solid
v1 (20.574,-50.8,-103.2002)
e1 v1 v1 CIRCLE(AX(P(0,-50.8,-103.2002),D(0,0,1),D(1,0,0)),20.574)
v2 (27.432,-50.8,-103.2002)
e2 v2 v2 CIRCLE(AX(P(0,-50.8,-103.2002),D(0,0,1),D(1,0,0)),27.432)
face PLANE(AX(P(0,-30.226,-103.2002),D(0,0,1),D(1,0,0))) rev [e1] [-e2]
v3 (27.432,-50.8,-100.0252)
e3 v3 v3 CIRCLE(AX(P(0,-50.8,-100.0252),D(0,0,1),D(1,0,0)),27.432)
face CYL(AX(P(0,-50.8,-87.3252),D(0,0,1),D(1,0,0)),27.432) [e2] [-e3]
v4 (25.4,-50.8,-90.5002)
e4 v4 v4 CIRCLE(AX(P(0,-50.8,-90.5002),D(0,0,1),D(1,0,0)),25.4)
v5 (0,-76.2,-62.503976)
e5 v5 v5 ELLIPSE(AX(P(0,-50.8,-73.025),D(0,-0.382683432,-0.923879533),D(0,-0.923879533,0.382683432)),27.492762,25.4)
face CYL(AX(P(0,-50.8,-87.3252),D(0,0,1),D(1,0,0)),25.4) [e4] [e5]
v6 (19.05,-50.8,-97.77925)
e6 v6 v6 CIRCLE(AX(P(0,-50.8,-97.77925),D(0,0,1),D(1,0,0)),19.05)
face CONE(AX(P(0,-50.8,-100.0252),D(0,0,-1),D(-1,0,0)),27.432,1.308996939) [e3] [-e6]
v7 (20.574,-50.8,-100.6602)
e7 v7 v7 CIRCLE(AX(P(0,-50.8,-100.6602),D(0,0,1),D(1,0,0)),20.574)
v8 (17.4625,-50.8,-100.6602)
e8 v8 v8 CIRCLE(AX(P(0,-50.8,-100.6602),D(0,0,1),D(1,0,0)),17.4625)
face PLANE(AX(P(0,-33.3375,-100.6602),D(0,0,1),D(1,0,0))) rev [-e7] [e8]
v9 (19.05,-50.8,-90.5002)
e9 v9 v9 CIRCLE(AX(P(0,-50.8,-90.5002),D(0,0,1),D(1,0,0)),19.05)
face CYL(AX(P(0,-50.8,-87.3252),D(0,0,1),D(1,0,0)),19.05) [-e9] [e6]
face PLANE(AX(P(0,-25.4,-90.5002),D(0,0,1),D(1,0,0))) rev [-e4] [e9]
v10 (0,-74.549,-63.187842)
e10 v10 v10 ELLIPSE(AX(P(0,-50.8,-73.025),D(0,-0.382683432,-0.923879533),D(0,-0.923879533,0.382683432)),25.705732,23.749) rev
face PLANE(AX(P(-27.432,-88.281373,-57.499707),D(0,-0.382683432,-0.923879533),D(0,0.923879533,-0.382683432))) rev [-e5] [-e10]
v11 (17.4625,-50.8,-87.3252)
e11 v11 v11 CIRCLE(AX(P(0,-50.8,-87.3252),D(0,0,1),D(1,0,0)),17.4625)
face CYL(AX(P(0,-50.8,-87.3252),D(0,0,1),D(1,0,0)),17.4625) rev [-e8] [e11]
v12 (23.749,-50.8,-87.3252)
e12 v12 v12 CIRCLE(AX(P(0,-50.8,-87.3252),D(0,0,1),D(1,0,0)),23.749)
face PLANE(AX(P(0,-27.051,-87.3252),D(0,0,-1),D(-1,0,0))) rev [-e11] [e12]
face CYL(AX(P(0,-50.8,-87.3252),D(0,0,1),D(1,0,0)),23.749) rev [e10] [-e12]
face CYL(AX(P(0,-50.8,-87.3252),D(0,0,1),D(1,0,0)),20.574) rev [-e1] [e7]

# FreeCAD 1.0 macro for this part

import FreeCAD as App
import Part
import Sketcher
from FreeCAD import Vector
Q = App.Units.Quantity

doc = App.newDocument("Part")
body = doc.addObject("PartDesign::Body", "Body")

sketch1 = doc.addObject("Sketcher::SketchObject", "Sketch")
body.addObject(sketch1)
sketch1.AttachmentSupport = (doc.YZ_Plane, [""])
sketch1.MapMode = "FlatFace"
sketch1.addGeometry(Part.LineSegment(Vector(-33.3375, -87.3252, 0), Vector(-33.3375, -100.6602, 0)), False)
sketch1.addGeometry(Part.LineSegment(Vector(-33.3375, -100.6602, 0), Vector(-30.226, -100.6602, 0)), False)
sketch1.addGeometry(Part.LineSegment(Vector(-30.226, -100.6602, 0), Vector(-30.226, -103.2002, 0)), False)
sketch1.addGeometry(Part.LineSegment(Vector(-30.226, -103.2002, 0), Vector(-23.368, -103.2002, 0)), False)
sketch1.addGeometry(Part.LineSegment(Vector(-23.368, -103.2002, 0), Vector(-23.368, -100.0252, 0)), False)
sketch1.addGeometry(Part.LineSegment(Vector(-23.368, -100.0252, 0), Vector(-31.75, -97.77925, 0)), False)
sketch1.addGeometry(Part.LineSegment(Vector(-31.75, -97.77925, 0), Vector(-31.75, -90.5002, 0)), False)
sketch1.addGeometry(Part.LineSegment(Vector(-31.75, -90.5002, 0), Vector(-25.4, -90.5002, 0)), False)
sketch1.addGeometry(Part.LineSegment(Vector(-25.4, -90.5002, 0), Vector(-25.4, -58.7502, 0)), False)
sketch1.addGeometry(Part.LineSegment(Vector(-25.4, -58.7502, 0), Vector(-27.051, -58.7502, 0)), False)
sketch1.addGeometry(Part.LineSegment(Vector(-27.051, -58.7502, 0), Vector(-27.051, -87.3252, 0)), False)
sketch1.addGeometry(Part.LineSegment(Vector(-27.051, -87.3252, 0), Vector(-33.3375, -87.3252, 0)), False)
sketch1.addGeometry(Part.LineSegment(Vector(-50.8, -58.7502, 0), Vector(-50.8, -103.2002, 0)), True)
sketch1.addConstraint(Sketcher.Constraint("Coincident", 0, 2, 1, 1))
sketch1.addConstraint(Sketcher.Constraint("Coincident", 1, 2, 2, 1))
sketch1.addConstraint(Sketcher.Constraint("Coincident", 2, 2, 3, 1))
sketch1.addConstraint(Sketcher.Constraint("Coincident", 3, 2, 4, 1))
sketch1.addConstraint(Sketcher.Constraint("Coincident", 4, 2, 5, 1))
sketch1.addConstraint(Sketcher.Constraint("Coincident", 5, 2, 6, 1))
sketch1.addConstraint(Sketcher.Constraint("Coincident", 6, 2, 7, 1))
sketch1.addConstraint(Sketcher.Constraint("Coincident", 7, 2, 8, 1))
sketch1.addConstraint(Sketcher.Constraint("Coincident", 8, 2, 9, 1))
sketch1.addConstraint(Sketcher.Constraint("Coincident", 9, 2, 10, 1))
sketch1.addConstraint(Sketcher.Constraint("Coincident", 10, 2, 11, 1))
sketch1.addConstraint(Sketcher.Constraint("Coincident", 11, 2, 0, 1))
sketch1.addConstraint(Sketcher.Constraint("Vertical", 0))
sketch1.addConstraint(Sketcher.Constraint("Horizontal", 1))
sketch1.addConstraint(Sketcher.Constraint("Vertical", 2))
sketch1.addConstraint(Sketcher.Constraint("Horizontal", 3))
sketch1.addConstraint(Sketcher.Constraint("Vertical", 4))
sketch1.addConstraint(Sketcher.Constraint("Vertical", 6))
sketch1.addConstraint(Sketcher.Constraint("Horizontal", 7))
sketch1.addConstraint(Sketcher.Constraint("Vertical", 8))
sketch1.addConstraint(Sketcher.Constraint("Horizontal", 9))
sketch1.addConstraint(Sketcher.Constraint("Vertical", 10))
sketch1.addConstraint(Sketcher.Constraint("Horizontal", 11))
sketch1.addConstraint(Sketcher.Constraint("Vertical", 12))
sketch1.addConstraint(Sketcher.Constraint("Horizontal", 9, 2, 12, 1))
sketch1.addConstraint(Sketcher.Constraint("Horizontal", 3, 2, 12, 2))
sketch1.addConstraint(Sketcher.Constraint("DistanceY", 2, 2, 2, 1, Q("0.1 in")))
sketch1.addConstraint(Sketcher.Constraint("DistanceX", 7, 2, -1, 1, Q("1 in")))
sketch1.addConstraint(Sketcher.Constraint("DistanceX", 12, 1, -1, 1, Q("2 in")))
sketch1.addConstraint(Sketcher.Constraint("Angle", 5, Q("165 deg")))
sketch1.addConstraint(Sketcher.Constraint("DistanceX", 3, 1, 3, 2, Q("0.27 in")))
sketch1.addConstraint(Sketcher.Constraint("DistanceX", 7, 1, 7, 2, Q("0.25 in")))
sketch1.addConstraint(Sketcher.Constraint("DistanceY", 8, 1, 8, 2, Q("1.25 in")))
sketch1.addConstraint(Sketcher.Constraint("DistanceY", 12, 2, 12, 1, Q("1.75 in")))
sketch1.addConstraint(Sketcher.Constraint("DistanceY", 4, 2, 10, 2, Q("0.5 in")))
sketch1.addConstraint(Sketcher.Constraint("DistanceX", 9, 2, 9, 1, Q("0.065 in")))
sketch1.addConstraint(Sketcher.Constraint("DistanceY", 0, 2, 0, 1, Q("0.525 in")))
sketch1.addConstraint(Sketcher.Constraint("DistanceX", 1, 2, -1, 1, Q("1.19 in")))
sketch1.addConstraint(Sketcher.Constraint("DistanceX", 1, 1, 1, 2, Q("0.1225 in")))
sketch1.addConstraint(Sketcher.Constraint("DistanceY", 0, 2, -1, 1, Q("3.963 in")))
revolution = doc.addObject("PartDesign::Revolution", "Revolution")
body.addObject(revolution)
revolution.Profile = sketch1
revolution.ReferenceAxis = (sketch1, ["Axis0"])
revolution.Angle = 360

sketch2 = doc.addObject("Sketcher::SketchObject", "Sketch001")
body.addObject(sketch2)
sketch2.AttachmentSupport = (doc.YZ_Plane, [""])
sketch2.MapMode = "FlatFace"
sketch2.addGeometry(Part.LineSegment(Vector(-88.281373, -57.499707, 0), Vector(-13.318627, -88.550293, 0)), False)
sketch2.addGeometry(Part.LineSegment(Vector(-13.318627, -88.550293, 0), Vector(-13.318627, -35.38386, 0)), False)
sketch2.addGeometry(Part.LineSegment(Vector(-13.318627, -35.38386, 0), Vector(-88.281373, -35.38386, 0)), False)
sketch2.addGeometry(Part.LineSegment(Vector(-88.281373, -35.38386, 0), Vector(-88.281373, -57.499707, 0)), False)
sketch2.addConstraint(Sketcher.Constraint("Coincident", 0, 2, 1, 1))
sketch2.addConstraint(Sketcher.Constraint("Coincident", 1, 2, 2, 1))
sketch2.addConstraint(Sketcher.Constraint("Coincident", 2, 2, 3, 1))
sketch2.addConstraint(Sketcher.Constraint("Coincident", 3, 2, 0, 1))
sketch2.addConstraint(Sketcher.Constraint("Vertical", 1))
sketch2.addConstraint(Sketcher.Constraint("Horizontal", 2))
sketch2.addConstraint(Sketcher.Constraint("Vertical", 3))
sketch2.addConstraint(Sketcher.Constraint("Angle", 0, Q("-22.5 deg")))
sketch2.addConstraint(Sketcher.Constraint("Distance", 0, 81.139091))
sketch2.addConstraint(Sketcher.Constraint("DistanceY", 1, 1, 1, 2, 53.166433))
sketch2.addConstraint(Sketcher.Constraint("DistanceY", 1, 2, -1, 1, 35.38386))
sketch2.addConstraint(Sketcher.Constraint("DistanceX", 0, 2, -1, 1, 13.318627))
pocket1 = doc.addObject("PartDesign::Pocket", "Pocket")
body.addObject(pocket1)
pocket1.Profile = sketch2
pocket1.Type = "ThroughAll"
pocket1.Midplane = True

doc.recompute()
